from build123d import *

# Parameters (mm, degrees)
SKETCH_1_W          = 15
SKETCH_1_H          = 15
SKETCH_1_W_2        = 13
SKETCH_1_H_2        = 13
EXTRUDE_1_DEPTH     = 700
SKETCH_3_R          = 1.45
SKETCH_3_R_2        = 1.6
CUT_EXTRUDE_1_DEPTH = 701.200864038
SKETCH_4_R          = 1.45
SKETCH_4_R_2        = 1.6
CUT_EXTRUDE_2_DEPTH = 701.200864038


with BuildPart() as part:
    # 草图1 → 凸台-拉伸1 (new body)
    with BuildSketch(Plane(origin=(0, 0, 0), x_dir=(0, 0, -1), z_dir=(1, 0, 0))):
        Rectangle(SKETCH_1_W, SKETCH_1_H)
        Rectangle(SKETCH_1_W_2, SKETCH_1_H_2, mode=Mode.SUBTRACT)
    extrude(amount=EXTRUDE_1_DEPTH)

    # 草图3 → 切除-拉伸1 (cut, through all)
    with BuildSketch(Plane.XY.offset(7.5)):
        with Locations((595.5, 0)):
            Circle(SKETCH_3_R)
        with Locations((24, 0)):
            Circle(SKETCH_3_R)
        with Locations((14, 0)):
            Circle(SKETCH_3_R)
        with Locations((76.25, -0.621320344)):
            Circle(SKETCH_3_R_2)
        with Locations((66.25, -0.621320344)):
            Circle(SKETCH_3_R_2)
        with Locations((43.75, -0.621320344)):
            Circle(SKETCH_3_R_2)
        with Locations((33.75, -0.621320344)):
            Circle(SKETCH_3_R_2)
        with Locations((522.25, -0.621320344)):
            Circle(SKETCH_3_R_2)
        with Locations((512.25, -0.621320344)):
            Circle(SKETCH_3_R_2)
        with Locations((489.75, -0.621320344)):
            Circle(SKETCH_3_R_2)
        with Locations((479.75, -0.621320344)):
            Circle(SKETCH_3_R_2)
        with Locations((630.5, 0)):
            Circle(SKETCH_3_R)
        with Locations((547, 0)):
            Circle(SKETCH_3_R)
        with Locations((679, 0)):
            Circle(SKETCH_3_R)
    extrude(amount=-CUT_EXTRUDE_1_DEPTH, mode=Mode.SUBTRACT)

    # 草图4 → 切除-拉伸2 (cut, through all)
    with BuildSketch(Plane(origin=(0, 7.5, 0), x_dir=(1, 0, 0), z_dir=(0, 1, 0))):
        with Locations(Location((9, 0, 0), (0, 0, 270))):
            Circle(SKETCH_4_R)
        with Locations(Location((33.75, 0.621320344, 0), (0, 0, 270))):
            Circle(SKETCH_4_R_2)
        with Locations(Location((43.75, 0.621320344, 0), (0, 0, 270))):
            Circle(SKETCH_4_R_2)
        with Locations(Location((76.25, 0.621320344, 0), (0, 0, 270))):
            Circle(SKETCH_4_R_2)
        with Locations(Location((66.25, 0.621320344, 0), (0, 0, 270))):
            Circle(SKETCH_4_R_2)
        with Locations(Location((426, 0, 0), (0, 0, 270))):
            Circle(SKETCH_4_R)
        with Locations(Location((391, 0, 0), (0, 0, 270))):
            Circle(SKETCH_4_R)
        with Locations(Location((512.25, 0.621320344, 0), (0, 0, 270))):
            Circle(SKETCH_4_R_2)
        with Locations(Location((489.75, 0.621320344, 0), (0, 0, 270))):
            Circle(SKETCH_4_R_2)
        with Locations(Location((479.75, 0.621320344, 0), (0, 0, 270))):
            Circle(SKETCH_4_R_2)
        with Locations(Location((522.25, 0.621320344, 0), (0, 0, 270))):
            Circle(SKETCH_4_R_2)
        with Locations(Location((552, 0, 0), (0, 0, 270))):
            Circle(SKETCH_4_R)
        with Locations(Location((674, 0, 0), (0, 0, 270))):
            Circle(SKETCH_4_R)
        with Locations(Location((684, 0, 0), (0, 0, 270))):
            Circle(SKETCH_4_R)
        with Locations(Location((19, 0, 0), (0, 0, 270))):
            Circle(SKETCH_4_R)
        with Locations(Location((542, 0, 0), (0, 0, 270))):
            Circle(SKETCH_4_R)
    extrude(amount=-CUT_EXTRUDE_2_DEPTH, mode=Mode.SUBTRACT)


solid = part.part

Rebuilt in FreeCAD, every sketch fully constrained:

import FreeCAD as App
import Part
import Sketcher
Q = App.Units.Quantity


def add_polygon(sketch, points):
    """Adds a closed chain of lines whose ends are joined by coincident constraints."""
    first, n = sketch.GeometryCount, len(points)
    for a, b in zip(points, points[1:] + points[:1]):
        sketch.addGeometry(Part.LineSegment(App.Vector(*a, 0), App.Vector(*b, 0)), False)
    for i in range(n):
        sketch.addConstraint(Sketcher.Constraint("Coincident", first + i, 2, first + (i + 1) % n, 1))

doc = App.newDocument("Part")
params = doc.addObject("Spreadsheet::Sheet", "Params")
for row, (alias, value) in enumerate([
    ("sketch1_width", "15 mm"),
    ("sketch1_width2", "13 mm"),
    ("pad1_length", "700 mm"),
    ("sketch2_diameter", "2.9 mm"),
    ("sketch2_diameter2", "3.2 mm"),
    ("sketch3_diameter", "2.9 mm"),
    ("sketch3_diameter2", "3.2 mm"),
], start=1):
    params.set(f"A{row}", alias)
    params.set(f"B{row}", "=" + value)
    params.setAlias(f"B{row}", alias)

body = doc.addObject("PartDesign::Body", "Body")

sketch1 = doc.addObject("Sketcher::SketchObject", "Sketch")
body.addObject(sketch1)
sketch1.AttachmentSupport = (doc.YZ_Plane, [""])
sketch1.MapMode = "FlatFace"
add_polygon(sketch1, [(8, 8), (-8, 8), (-8, -8), (8, -8)])
add_polygon(sketch1, [(-6, -6), (-6, 6), (6, 6), (6, -6)])
sketch1.addConstraint([
    Sketcher.Constraint("Horizontal", 0),
    Sketcher.Constraint("Vertical", 1),
    Sketcher.Constraint("Horizontal", 2),
    Sketcher.Constraint("Vertical", 3),
    Sketcher.Constraint("Vertical", 4),
    Sketcher.Constraint("Horizontal", 5),
    Sketcher.Constraint("Vertical", 6),
    Sketcher.Constraint("Horizontal", 7),
    Sketcher.Constraint("Symmetric", 0, 2, 2, 2, -1, 1),
    Sketcher.Constraint("Symmetric", 4, 2, 6, 2, -1, 1),
    Sketcher.Constraint("Equal", 2, 1),
    Sketcher.Constraint("Equal", 7, 4),
    Sketcher.Constraint("DistanceX", 0, 2, 0, 1, Q("15 mm")),
    Sketcher.Constraint("DistanceX", 5, 1, 5, 2, Q("13 mm")),
])
sketch1.setExpression("Constraints[20]", "Params.sketch1_width")
sketch1.setExpression("Constraints[21]", "Params.sketch1_width2")
pad1 = doc.addObject("PartDesign::Pad", "Pad")
body.addObject(pad1)
pad1.Profile = sketch1
pad1.setExpression("Length", "Params.pad1_length")

sketch2 = doc.addObject("Sketcher::SketchObject", "Sketch001")
body.addObject(sketch2)
sketch2.AttachmentSupport = (doc.XY_Plane, [""])
sketch2.MapMode = "FlatFace"
sketch2.AttachmentOffset = App.Placement(App.Vector(0, 0, 7.5), App.Rotation())
sketch2.addGeometry([
    Part.Circle(App.Vector(595.5, 0, 0), App.Vector(0, 0, 1), 1.4),
    Part.Circle(App.Vector(24, 0, 0), App.Vector(0, 0, 1), 1.4),
    Part.Circle(App.Vector(14, 0, 0), App.Vector(0, 0, 1), 1.4),
    Part.Circle(App.Vector(76.2, -0.6, 0), App.Vector(0, 0, 1), 1.6),
    Part.Circle(App.Vector(66.2, -0.6, 0), App.Vector(0, 0, 1), 1.6),
    Part.Circle(App.Vector(43.8, -0.6, 0), App.Vector(0, 0, 1), 1.6),
    Part.Circle(App.Vector(33.8, -0.6, 0), App.Vector(0, 0, 1), 1.6),
    Part.Circle(App.Vector(522.2, -0.6, 0), App.Vector(0, 0, 1), 1.6),
    Part.Circle(App.Vector(512.2, -0.6, 0), App.Vector(0, 0, 1), 1.6),
    Part.Circle(App.Vector(489.8, -0.6, 0), App.Vector(0, 0, 1), 1.6),
    Part.Circle(App.Vector(479.8, -0.6, 0), App.Vector(0, 0, 1), 1.6),
    Part.Circle(App.Vector(630.5, 0, 0), App.Vector(0, 0, 1), 1.4),
    Part.Circle(App.Vector(547, 0, 0), App.Vector(0, 0, 1), 1.4),
    Part.Circle(App.Vector(679, 0, 0), App.Vector(0, 0, 1), 1.4),
], False)
sketch2.addConstraint([
    Sketcher.Constraint("Equal", 0, 1),
    Sketcher.Constraint("Equal", 1, 2),
    Sketcher.Constraint("Equal", 3, 4),
    Sketcher.Constraint("Equal", 4, 5),
    Sketcher.Constraint("Equal", 5, 6),
    Sketcher.Constraint("Equal", 6, 7),
    Sketcher.Constraint("Equal", 7, 8),
    Sketcher.Constraint("Equal", 8, 9),
    Sketcher.Constraint("Equal", 9, 10),
    Sketcher.Constraint("Equal", 2, 11),
    Sketcher.Constraint("Equal", 11, 12),
    Sketcher.Constraint("Equal", 12, 13),
    Sketcher.Constraint("PointOnObject", 0, 3, -1),
    Sketcher.Constraint("PointOnObject", 1, 3, -1),
    Sketcher.Constraint("PointOnObject", 2, 3, -1),
    Sketcher.Constraint("PointOnObject", 11, 3, -1),
    Sketcher.Constraint("PointOnObject", 12, 3, -1),
    Sketcher.Constraint("PointOnObject", 13, 3, -1),
    Sketcher.Constraint("Horizontal", 3, 3, 4, 3),
    Sketcher.Constraint("Horizontal", 4, 3, 5, 3),
    Sketcher.Constraint("Horizontal", 5, 3, 6, 3),
    Sketcher.Constraint("Horizontal", 6, 3, 7, 3),
    Sketcher.Constraint("Horizontal", 7, 3, 8, 3),
    Sketcher.Constraint("Horizontal", 8, 3, 9, 3),
    Sketcher.Constraint("Horizontal", 9, 3, 10, 3),
    Sketcher.Constraint("Diameter", 0, Q("2.9 mm")),
    Sketcher.Constraint("Diameter", 3, Q("3.2 mm")),
    Sketcher.Constraint("DistanceX", -1, 1, 1, 3, Q("24 mm")),
    Sketcher.Constraint("DistanceX", -1, 1, 2, 3, Q("14 mm")),
    Sketcher.Constraint("DistanceX", -1, 1, 12, 3, Q("547 mm")),
    Sketcher.Constraint("DistanceX", -1, 1, 13, 3, Q("679 mm")),
    Sketcher.Constraint("DistanceX", 4, 3, 3, 3, Q("10 mm")),
    Sketcher.Constraint("DistanceX", 6, 3, 5, 3, Q("10 mm")),
    Sketcher.Constraint("DistanceX", 3, 3, 7, 3, Q("446 mm")),
    Sketcher.Constraint("DistanceX", 8, 3, 7, 3, Q("10 mm")),
    Sketcher.Constraint("DistanceX", 10, 3, 9, 3, Q("10 mm")),
    Sketcher.Constraint("DistanceX", 0, 3, 11, 3, Q("35 mm")),
    Sketcher.Constraint("DistanceX", -1, 1, 0, 3, Q("595.5 mm")),
    Sketcher.Constraint("DistanceX", 5, 3, 4, 3, Q("22.5 mm")),
    Sketcher.Constraint("DistanceX", 9, 3, 8, 3, Q("22.5 mm")),
    Sketcher.Constraint("DistanceX", -1, 1, 3, 3, Q("76.25 mm")),
    Sketcher.Constraint("DistanceY", 3, 3, -1, 1, Q("0.62132 mm")),
])
sketch2.setExpression("Constraints[25]", "Params.sketch2_diameter")
sketch2.setExpression("Constraints[26]", "Params.sketch2_diameter2")
pocket1 = doc.addObject("PartDesign::Pocket", "Pocket")
body.addObject(pocket1)
pocket1.Profile = sketch2
pocket1.Type = "ThroughAll"

sketch3 = doc.addObject("Sketcher::SketchObject", "Sketch002")
body.addObject(sketch3)
sketch3.AttachmentSupport = (doc.XZ_Plane, [""])
sketch3.MapMode = "FlatFace"
sketch3.AttachmentOffset = App.Placement(App.Vector(0, 0, -7.5), App.Rotation())
sketch3.addGeometry([
    Part.Circle(App.Vector(9, 0, 0), App.Vector(0, 0, 1), 1.4),
    Part.Circle(App.Vector(33.8, -0.6, 0), App.Vector(0, 0, 1), 1.6),
    Part.Circle(App.Vector(43.8, -0.6, 0), App.Vector(0, 0, 1), 1.6),
    Part.Circle(App.Vector(76.2, -0.6, 0), App.Vector(0, 0, 1), 1.6),
    Part.Circle(App.Vector(66.2, -0.6, 0), App.Vector(0, 0, 1), 1.6),
    Part.Circle(App.Vector(426, 0, 0), App.Vector(0, 0, 1), 1.4),
    Part.Circle(App.Vector(391, 0, 0), App.Vector(0, 0, 1), 1.4),
    Part.Circle(App.Vector(512.2, -0.6, 0), App.Vector(0, 0, 1), 1.6),
    Part.Circle(App.Vector(489.8, -0.6, 0), App.Vector(0, 0, 1), 1.6),
    Part.Circle(App.Vector(479.8, -0.6, 0), App.Vector(0, 0, 1), 1.6),
    Part.Circle(App.Vector(522.2, -0.6, 0), App.Vector(0, 0, 1), 1.6),
    Part.Circle(App.Vector(552, 0, 0), App.Vector(0, 0, 1), 1.4),
    Part.Circle(App.Vector(674, 0, 0), App.Vector(0, 0, 1), 1.4),
    Part.Circle(App.Vector(684, 0, 0), App.Vector(0, 0, 1), 1.4),
    Part.Circle(App.Vector(19, 0, 0), App.Vector(0, 0, 1), 1.4),
    Part.Circle(App.Vector(542, 0, 0), App.Vector(0, 0, 1), 1.4),
], False)
sketch3.addConstraint([
    Sketcher.Constraint("Equal", 1, 2),
    Sketcher.Constraint("Equal", 2, 3),
    Sketcher.Constraint("Equal", 3, 4),
    Sketcher.Constraint("Equal", 0, 5),
    Sketcher.Constraint("Equal", 5, 6),
    Sketcher.Constraint("Equal", 4, 7),
    Sketcher.Constraint("Equal", 7, 8),
    Sketcher.Constraint("Equal", 8, 9),
    Sketcher.Constraint("Equal", 9, 10),
    Sketcher.Constraint("Equal", 6, 11),
    Sketcher.Constraint("Equal", 11, 12),
    Sketcher.Constraint("Equal", 12, 13),
    Sketcher.Constraint("Equal", 13, 14),
    Sketcher.Constraint("Equal", 14, 15),
    Sketcher.Constraint("PointOnObject", 0, 3, -1),
    Sketcher.Constraint("PointOnObject", 5, 3, -1),
    Sketcher.Constraint("PointOnObject", 6, 3, -1),
    Sketcher.Constraint("PointOnObject", 11, 3, -1),
    Sketcher.Constraint("PointOnObject", 12, 3, -1),
    Sketcher.Constraint("PointOnObject", 13, 3, -1),
    Sketcher.Constraint("PointOnObject", 14, 3, -1),
    Sketcher.Constraint("PointOnObject", 15, 3, -1),
    Sketcher.Constraint("Horizontal", 1, 3, 2, 3),
    Sketcher.Constraint("Horizontal", 2, 3, 3, 3),
    Sketcher.Constraint("Horizontal", 3, 3, 4, 3),
    Sketcher.Constraint("Horizontal", 4, 3, 7, 3),
    Sketcher.Constraint("Horizontal", 7, 3, 8, 3),
    Sketcher.Constraint("Horizontal", 8, 3, 9, 3),
    Sketcher.Constraint("Horizontal", 9, 3, 10, 3),
    Sketcher.Constraint("Diameter", 0, Q("2.9 mm")),
    Sketcher.Constraint("Diameter", 1, Q("3.2 mm")),
    Sketcher.Constraint("DistanceX", -1, 1, 0, 3, Q("9 mm")),
    Sketcher.Constraint("DistanceX", -1, 1, 5, 3, Q("426 mm")),
    Sketcher.Constraint("DistanceX", -1, 1, 6, 3, Q("391 mm")),
    Sketcher.Constraint("DistanceX", -1, 1, 11, 3, Q("552 mm")),
    Sketcher.Constraint("DistanceX", -1, 1, 12, 3, Q("674 mm")),
    Sketcher.Constraint("DistanceX", -1, 1, 13, 3, Q("684 mm")),
    Sketcher.Constraint("DistanceX", -1, 1, 14, 3, Q("19 mm")),
    Sketcher.Constraint("DistanceX", -1, 1, 15, 3, Q("542 mm")),
    Sketcher.Constraint("DistanceX", 1, 3, 2, 3, Q("10 mm")),
    Sketcher.Constraint("DistanceX", 4, 3, 3, 3, Q("10 mm")),
    Sketcher.Constraint("DistanceX", 3, 3, 7, 3, Q("436 mm")),
    Sketcher.Constraint("DistanceX", 9, 3, 8, 3, Q("10 mm")),
    Sketcher.Constraint("DistanceX", 7, 3, 10, 3, Q("10 mm")),
    Sketcher.Constraint("DistanceX", 2, 3, 3, 3, Q("32.5 mm")),
    Sketcher.Constraint("DistanceX", 8, 3, 7, 3, Q("22.5 mm")),
    Sketcher.Constraint("DistanceX", -1, 1, 1, 3, Q("33.75 mm")),
    Sketcher.Constraint("DistanceY", 1, 3, -1, 1, Q("0.62132 mm")),
])
sketch3.setExpression("Constraints[29]", "Params.sketch3_diameter")
sketch3.setExpression("Constraints[30]", "Params.sketch3_diameter2")
pocket2 = doc.addObject("PartDesign::Pocket", "Pocket001")
body.addObject(pocket2)
pocket2.Profile = sketch3
pocket2.Type = "ThroughAll"
pocket2.Reversed = True

doc.recompute()
